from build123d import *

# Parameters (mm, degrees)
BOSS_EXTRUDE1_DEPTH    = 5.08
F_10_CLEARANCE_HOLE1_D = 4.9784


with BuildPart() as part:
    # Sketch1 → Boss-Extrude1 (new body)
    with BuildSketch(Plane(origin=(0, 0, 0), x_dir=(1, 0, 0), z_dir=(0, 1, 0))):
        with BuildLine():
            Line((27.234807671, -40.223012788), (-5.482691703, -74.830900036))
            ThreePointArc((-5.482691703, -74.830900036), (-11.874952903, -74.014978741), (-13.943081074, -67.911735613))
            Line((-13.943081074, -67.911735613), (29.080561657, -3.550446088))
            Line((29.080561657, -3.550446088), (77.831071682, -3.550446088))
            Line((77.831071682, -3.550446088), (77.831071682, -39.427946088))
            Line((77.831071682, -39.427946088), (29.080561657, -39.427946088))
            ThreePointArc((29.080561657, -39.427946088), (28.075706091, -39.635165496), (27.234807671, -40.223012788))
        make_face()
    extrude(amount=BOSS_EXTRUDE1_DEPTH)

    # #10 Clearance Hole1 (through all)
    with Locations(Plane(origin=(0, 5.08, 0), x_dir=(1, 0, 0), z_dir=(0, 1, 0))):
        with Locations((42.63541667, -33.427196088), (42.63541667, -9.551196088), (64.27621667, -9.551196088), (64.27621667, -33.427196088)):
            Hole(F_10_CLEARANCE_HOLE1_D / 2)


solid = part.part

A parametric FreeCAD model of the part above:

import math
import FreeCAD as App
import Part
import Sketcher
from FreeCAD import Vector
Q = App.Units.Quantity

doc = App.newDocument("Part")
body = doc.addObject("PartDesign::Body", "Body")

# Sketch on XZ plane
sketch1 = body.newObject("Sketcher::SketchObject", "Sketch")
sketch1.AttachmentSupport = (doc.getObject("XZ_Plane"), [""])
sketch1.MapMode = "FlatFace"
sketch1.addGeometry([
    Part.LineSegment(Vector(-5.5, 74.8, 0), Vector(27.2, 40.2, 0)),  # 0
    Part.ArcOfCircle(Part.Circle(Vector(29.1, 42, 0), Vector(0, 0, 1), 2.5), math.radians(-137), math.radians(-90)),  # 1
    Part.LineSegment(Vector(29.1, 39.4, 0), Vector(77.8, 39.4, 0)),  # 2
    Part.LineSegment(Vector(77.8, 39.4, 0), Vector(77.8, 3.6, 0)),  # 3
    Part.LineSegment(Vector(77.8, 3.6, 0), Vector(29.1, 3.6, 0)),  # 4
    Part.LineSegment(Vector(29.1, 3.6, 0), Vector(-13.9, 67.9, 0)),  # 5
    Part.ArcOfCircle(Part.Circle(Vector(-8, 69.3, 0), Vector(0, 0, 1), 6.1), math.radians(65), math.radians(193)),  # 6
], False)
sketch1.addConstraint([
    Sketcher.Constraint("Tangent", 0, 2, 1, 1),
    Sketcher.Constraint("Tangent", 1, 2, 2, 1),
    Sketcher.Constraint("Coincident", 2, 2, 3, 1),
    Sketcher.Constraint("Coincident", 3, 2, 4, 1),
    Sketcher.Constraint("Coincident", 4, 2, 5, 1),
    Sketcher.Constraint("Coincident", 5, 2, 6, 2),
    Sketcher.Constraint("Coincident", 6, 1, 0, 1),
    Sketcher.Constraint("Horizontal", 2),
    Sketcher.Constraint("Vertical", 3),
    Sketcher.Constraint("Horizontal", 4),
    Sketcher.Constraint("Vertical", 1, 2, 4, 2),
    Sketcher.Constraint("Radius", 1, Q("0.1 in")),
    Sketcher.Constraint("Distance", 0, Q("1.875 in")),
    Sketcher.Constraint("DistanceY", 3, 2, 3, 1, Q("1.4125 in")),
    Sketcher.Constraint("Radius", 6, Q("6.079723 mm")),
    Sketcher.Constraint("DistanceX", 2, 1, 2, 2, Q("48.75051 mm")),
    Sketcher.Constraint("DistanceY", -1, 1, 6, 1, Q("74.8309 mm")),
    Sketcher.Constraint("DistanceX", 6, 1, 0, 2, Q("32.717499 mm")),
    Sketcher.Constraint("DistanceX", -1, 1, 1, 3, Q("29.080562 mm")),
    Sketcher.Constraint("DistanceX", 5, 2, -1, 1, Q("13.943081 mm")),
    Sketcher.Constraint("DistanceX", 6, 3, 0, 2, Q("35.260841 mm")),
])
pad1 = body.newObject("PartDesign::Pad", "Pad")
pad1.Profile = sketch1
pad1.Length = Q("0.2 in")
pad1.Reversed = True

# Sketch on XZ plane
sketch2 = body.newObject("Sketcher::SketchObject", "Sketch001")
sketch2.AttachmentSupport = (doc.getObject("XZ_Plane"), [""])
sketch2.MapMode = "FlatFace"
sketch2.AttachmentOffset = App.Placement(Vector(0, 0, -0.2 * 25.4), App.Rotation())
sketch2.addGeometry([
    Part.Circle(Vector(42.6, 33.4, 0), Vector(0, 0, 1), 2.5),
    Part.Circle(Vector(42.6, 9.6, 0), Vector(0, 0, 1), 2.5),
    Part.Circle(Vector(64.3, 9.6, 0), Vector(0, 0, 1), 2.5),
    Part.Circle(Vector(64.3, 33.4, 0), Vector(0, 0, 1), 2.5),
], False)
sketch2.addConstraint([
    Sketcher.Constraint("Equal", 0, 1),
    Sketcher.Constraint("Equal", 1, 2),
    Sketcher.Constraint("Equal", 2, 3),
    Sketcher.Constraint("Horizontal", 1, 3, 2, 3),
    Sketcher.Constraint("Horizontal", 0, 3, 3, 3),
    Sketcher.Constraint("Vertical", 0, 3, 1, 3),
    Sketcher.Constraint("Vertical", 2, 3, 3, 3),
    Sketcher.Constraint("Diameter", 0, Q("0.196 in")),
    Sketcher.Constraint("DistanceY", 1, 3, 0, 3, Q("0.94 in")),
    Sketcher.Constraint("DistanceX", 1, 3, 2, 3, Q("0.852 in")),
    Sketcher.Constraint("DistanceX", -1, 1, 0, 3, Q("42.635417 mm")),
    Sketcher.Constraint("DistanceY", -1, 1, 0, 3, Q("33.427196 mm")),
])
doc.recompute()
hole = body.newObject("PartDesign::Hole", "Hole")
hole.Profile = sketch2
hole.ThreadType = "None"
hole.Diameter = Q("0.196 in")
hole.DepthType = "ThroughAll"
hole.Reversed = True

doc.recompute()
